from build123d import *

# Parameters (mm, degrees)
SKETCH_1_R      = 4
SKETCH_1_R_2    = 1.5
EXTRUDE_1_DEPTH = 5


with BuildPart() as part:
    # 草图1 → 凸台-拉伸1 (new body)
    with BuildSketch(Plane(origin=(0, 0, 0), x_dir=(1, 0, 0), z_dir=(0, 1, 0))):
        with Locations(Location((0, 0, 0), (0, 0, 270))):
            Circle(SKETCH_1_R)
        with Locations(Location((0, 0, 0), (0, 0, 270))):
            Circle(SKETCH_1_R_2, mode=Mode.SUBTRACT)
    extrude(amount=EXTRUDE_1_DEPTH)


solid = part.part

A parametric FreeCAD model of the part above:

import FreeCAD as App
import Part
import Sketcher
from FreeCAD import Vector

doc = App.newDocument("Part")
body = doc.addObject("PartDesign::Body", "Body")

# Sketch on XZ plane
sketch1 = doc.addObject("Sketcher::SketchObject", "Sketch")
body.addObject(sketch1)
sketch1.AttachmentSupport = (doc.XZ_Plane, [""])
sketch1.MapMode = "FlatFace"
sketch1.addGeometry(Part.Circle(Vector(0, 0, 0), Vector(0, 0, 1), 4), False)
sketch1.addGeometry(Part.Circle(Vector(0, 0, 0), Vector(0, 0, 1), 1.5), False)
sketch1.addConstraint(Sketcher.Constraint("Coincident", 0, 3, -1, 1))
sketch1.addConstraint(Sketcher.Constraint("Coincident", 1, 3, -1, 1))
sketch1.addConstraint(Sketcher.Constraint("Diameter", 0, 8.0))
sketch1.addConstraint(Sketcher.Constraint("Diameter", 1, 3.0))
pad1 = doc.addObject("PartDesign::Pad", "Pad")
body.addObject(pad1)
pad1.Profile = sketch1
pad1.Length = 5
pad1.Reversed = True

doc.recompute()
